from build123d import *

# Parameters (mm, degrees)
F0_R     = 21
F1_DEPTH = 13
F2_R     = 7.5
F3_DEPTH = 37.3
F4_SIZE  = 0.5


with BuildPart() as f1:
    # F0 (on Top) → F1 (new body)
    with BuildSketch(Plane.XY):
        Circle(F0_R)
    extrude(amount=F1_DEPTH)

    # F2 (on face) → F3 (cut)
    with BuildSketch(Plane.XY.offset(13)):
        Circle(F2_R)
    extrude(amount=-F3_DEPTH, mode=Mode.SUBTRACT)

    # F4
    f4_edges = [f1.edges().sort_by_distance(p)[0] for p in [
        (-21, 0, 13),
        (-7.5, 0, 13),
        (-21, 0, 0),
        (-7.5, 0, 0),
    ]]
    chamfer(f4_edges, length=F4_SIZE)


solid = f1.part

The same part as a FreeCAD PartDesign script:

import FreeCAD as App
import Part
import Sketcher

V = App.Vector


def edges_at(feature, points):
    """Names of the edges that pass closest to the given points."""
    edges = feature.Shape.Edges
    near = lambda p: min(range(len(edges)), key=lambda i: edges[i].distToShape(Part.Vertex(*p))[0])
    return sorted({f"Edge{near(p) + 1}" for p in points})

doc = App.newDocument("Part")
body = doc.addObject("PartDesign::Body", "Body")

# Sketch on XY plane
sketch1 = doc.addObject("Sketcher::SketchObject", "Sketch")
body.addObject(sketch1)
sketch1.AttachmentSupport = (doc.XY_Plane, [""])
sketch1.MapMode = "FlatFace"
sketch1.addGeometry(Part.Circle(V(0, 0, 0), V(0, 0, 1), 21), False)
sketch1.addConstraint(Sketcher.Constraint("Coincident", 0, 3, -1, 1))
sketch1.addConstraint(Sketcher.Constraint("Diameter", 0, 42.0))
pad1 = doc.addObject("PartDesign::Pad", "Pad")
body.addObject(pad1)
pad1.Profile = sketch1
pad1.Length = 13

# Sketch on XY plane
sketch2 = doc.addObject("Sketcher::SketchObject", "Sketch001")
body.addObject(sketch2)
sketch2.AttachmentSupport = (doc.XY_Plane, [""])
sketch2.MapMode = "FlatFace"
sketch2.AttachmentOffset = App.Placement(V(0, 0, 13), App.Rotation())
sketch2.addGeometry(Part.Circle(V(0, 0, 0), V(0, 0, 1), 8), False)
sketch2.addConstraint(Sketcher.Constraint("Coincident", 0, 3, -1, 1))
sketch2.addConstraint(Sketcher.Constraint("Diameter", 0, 15.0))
pocket1 = doc.addObject("PartDesign::Pocket", "Pocket")
body.addObject(pocket1)
pocket1.Profile = sketch2
pocket1.Length = 37.3
doc.recompute()

chamfer = doc.addObject("PartDesign::Chamfer", "Chamfer")
body.addObject(chamfer)
chamfer.Base = (pocket1, edges_at(pocket1, [
    (-21, 0, 13),
    (-7.5, 0, 13),
    (-21, 0, 0),
    (-7.5, 0, 0),
]))
chamfer.Size = 0.5

doc.recompute()
